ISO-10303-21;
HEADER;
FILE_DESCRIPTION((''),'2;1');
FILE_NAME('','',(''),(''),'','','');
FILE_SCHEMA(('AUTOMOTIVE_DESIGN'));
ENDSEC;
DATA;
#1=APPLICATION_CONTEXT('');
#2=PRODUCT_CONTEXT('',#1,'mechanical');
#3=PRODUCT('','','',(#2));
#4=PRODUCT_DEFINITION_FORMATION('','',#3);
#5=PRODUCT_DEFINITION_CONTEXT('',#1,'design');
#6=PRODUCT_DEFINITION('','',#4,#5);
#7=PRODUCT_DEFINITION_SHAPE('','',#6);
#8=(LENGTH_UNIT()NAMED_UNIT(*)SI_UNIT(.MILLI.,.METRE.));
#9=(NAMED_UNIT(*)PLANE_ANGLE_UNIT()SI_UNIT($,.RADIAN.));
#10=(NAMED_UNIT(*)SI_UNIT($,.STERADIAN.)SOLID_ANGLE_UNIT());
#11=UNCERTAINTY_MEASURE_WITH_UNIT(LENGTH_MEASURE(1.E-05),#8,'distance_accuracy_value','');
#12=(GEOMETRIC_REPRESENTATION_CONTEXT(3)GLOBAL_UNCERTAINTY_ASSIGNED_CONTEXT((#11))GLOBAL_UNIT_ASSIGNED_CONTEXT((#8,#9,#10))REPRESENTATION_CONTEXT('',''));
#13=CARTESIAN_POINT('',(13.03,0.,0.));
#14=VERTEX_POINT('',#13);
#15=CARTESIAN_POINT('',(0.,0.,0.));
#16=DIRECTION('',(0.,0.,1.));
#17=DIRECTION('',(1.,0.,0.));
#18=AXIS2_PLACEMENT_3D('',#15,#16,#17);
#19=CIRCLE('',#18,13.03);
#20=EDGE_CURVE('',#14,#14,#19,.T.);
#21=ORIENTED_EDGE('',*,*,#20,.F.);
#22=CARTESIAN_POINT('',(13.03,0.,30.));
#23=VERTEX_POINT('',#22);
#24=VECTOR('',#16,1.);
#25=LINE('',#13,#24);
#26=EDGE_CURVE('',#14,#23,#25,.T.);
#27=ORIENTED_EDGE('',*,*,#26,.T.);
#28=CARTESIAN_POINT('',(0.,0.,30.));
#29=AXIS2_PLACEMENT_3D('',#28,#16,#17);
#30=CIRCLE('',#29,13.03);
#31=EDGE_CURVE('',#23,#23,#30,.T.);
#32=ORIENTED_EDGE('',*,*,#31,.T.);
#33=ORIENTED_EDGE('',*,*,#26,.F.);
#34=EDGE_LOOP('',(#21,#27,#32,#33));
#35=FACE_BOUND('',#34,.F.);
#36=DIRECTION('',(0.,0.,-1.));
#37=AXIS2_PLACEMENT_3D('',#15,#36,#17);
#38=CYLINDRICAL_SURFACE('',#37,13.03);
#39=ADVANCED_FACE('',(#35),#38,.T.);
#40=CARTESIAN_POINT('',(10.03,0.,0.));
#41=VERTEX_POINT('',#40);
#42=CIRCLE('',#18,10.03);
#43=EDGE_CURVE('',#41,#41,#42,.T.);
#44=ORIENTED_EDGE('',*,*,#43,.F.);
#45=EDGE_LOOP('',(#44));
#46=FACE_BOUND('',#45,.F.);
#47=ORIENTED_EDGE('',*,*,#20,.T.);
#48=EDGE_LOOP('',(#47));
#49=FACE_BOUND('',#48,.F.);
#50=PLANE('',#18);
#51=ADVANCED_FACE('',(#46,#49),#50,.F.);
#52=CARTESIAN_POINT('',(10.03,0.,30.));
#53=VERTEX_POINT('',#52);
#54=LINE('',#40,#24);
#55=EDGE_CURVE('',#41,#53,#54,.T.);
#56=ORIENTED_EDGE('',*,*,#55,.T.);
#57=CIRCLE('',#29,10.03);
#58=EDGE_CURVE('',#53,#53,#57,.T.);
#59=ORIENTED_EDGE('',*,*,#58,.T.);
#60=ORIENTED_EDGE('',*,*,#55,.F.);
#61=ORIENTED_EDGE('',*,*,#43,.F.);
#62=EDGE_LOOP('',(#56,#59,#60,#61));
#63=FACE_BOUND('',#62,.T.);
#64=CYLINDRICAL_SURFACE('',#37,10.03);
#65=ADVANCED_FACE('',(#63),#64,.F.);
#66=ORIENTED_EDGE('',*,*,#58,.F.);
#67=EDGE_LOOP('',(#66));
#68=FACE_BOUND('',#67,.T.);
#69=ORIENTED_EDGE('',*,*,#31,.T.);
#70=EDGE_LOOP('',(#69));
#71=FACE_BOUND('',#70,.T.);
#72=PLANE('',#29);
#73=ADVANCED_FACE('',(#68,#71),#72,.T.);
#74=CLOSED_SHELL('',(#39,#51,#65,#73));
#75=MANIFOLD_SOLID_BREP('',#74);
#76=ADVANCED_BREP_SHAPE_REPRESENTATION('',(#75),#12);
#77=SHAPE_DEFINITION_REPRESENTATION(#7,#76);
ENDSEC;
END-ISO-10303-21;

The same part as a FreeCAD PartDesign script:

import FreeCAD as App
import Part
import Sketcher
from FreeCAD import Vector

doc = App.newDocument("Part")
body = doc.addObject("PartDesign::Body", "Body")

sketch1 = body.newObject("Sketcher::SketchObject", "Sketch")
sketch1.AttachmentSupport = (doc.getObject("XY_Plane"), [""])
sketch1.MapMode = "FlatFace"
sketch1.addGeometry([
    Part.Circle(Vector(0, 0, 0), Vector(0, 0, 1), 13),
    Part.Circle(Vector(0, 0, 0), Vector(0, 0, 1), 10),
], False)
sketch1.addConstraint([
    Sketcher.Constraint("Coincident", 0, 3, -1, 1),
    Sketcher.Constraint("Coincident", 1, 3, -1, 1),
    Sketcher.Constraint("Diameter", 0, 26.06),
    Sketcher.Constraint("Diameter", 1, 20.06),
])
pad1 = body.newObject("PartDesign::Pad", "Pad")
pad1.Profile = sketch1
pad1.Length = 30

doc.recompute()
